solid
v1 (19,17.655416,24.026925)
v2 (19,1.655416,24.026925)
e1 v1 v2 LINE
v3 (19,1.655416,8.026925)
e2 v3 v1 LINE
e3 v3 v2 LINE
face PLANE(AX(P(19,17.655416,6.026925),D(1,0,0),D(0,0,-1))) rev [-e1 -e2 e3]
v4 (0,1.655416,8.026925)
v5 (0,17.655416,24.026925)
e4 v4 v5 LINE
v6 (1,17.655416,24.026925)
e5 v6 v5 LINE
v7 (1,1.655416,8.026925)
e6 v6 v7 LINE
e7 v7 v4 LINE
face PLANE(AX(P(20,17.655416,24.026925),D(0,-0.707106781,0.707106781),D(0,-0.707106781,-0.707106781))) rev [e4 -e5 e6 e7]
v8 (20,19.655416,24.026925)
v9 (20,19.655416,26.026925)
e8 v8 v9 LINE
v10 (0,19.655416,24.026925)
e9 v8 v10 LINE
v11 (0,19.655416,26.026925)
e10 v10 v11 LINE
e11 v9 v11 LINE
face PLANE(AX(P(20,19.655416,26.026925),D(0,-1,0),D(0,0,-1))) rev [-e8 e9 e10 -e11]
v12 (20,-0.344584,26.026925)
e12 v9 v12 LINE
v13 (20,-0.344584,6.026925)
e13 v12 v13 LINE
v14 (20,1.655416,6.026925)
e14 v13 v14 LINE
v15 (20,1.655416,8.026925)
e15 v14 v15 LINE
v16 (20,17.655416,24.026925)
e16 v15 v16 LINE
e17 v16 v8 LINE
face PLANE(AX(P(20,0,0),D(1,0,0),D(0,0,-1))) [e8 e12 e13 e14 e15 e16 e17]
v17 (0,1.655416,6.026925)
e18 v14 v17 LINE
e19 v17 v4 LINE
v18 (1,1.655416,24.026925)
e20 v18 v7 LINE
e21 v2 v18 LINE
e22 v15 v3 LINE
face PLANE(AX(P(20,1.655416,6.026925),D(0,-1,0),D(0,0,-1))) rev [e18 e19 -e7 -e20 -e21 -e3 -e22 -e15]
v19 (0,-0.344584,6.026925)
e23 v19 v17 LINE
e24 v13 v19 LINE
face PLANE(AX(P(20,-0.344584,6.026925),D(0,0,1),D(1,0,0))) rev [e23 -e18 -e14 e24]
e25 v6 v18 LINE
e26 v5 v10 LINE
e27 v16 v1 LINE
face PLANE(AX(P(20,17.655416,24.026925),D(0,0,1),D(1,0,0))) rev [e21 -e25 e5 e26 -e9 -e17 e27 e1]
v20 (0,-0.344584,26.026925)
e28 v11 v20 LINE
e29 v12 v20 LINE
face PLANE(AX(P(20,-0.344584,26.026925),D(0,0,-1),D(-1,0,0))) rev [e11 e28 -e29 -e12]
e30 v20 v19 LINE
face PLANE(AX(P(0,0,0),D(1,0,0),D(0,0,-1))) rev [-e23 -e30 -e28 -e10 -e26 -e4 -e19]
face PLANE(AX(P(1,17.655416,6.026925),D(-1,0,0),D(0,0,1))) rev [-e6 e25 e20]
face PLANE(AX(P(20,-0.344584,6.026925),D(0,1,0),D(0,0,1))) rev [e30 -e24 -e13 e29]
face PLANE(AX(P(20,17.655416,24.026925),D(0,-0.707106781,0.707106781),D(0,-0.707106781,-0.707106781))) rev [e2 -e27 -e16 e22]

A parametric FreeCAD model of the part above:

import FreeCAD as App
import Part
import Sketcher
Q = App.Units.Quantity

doc = App.newDocument("Part")
body = doc.addObject("PartDesign::Body", "Body")

# Sketch on YZ plane
sketch1 = body.newObject("Sketcher::SketchObject", "Sketch")
sketch1.AttachmentSupport = (doc.getObject("YZ_Plane"), [""])
sketch1.MapMode = "FlatFace"
sketch1.addGeometry([
    Part.LineSegment(App.Vector(-0.3, 26, 0), App.Vector(-0.3, 6, 0)),  # 0
    Part.LineSegment(App.Vector(-0.3, 6, 0), App.Vector(1.7, 6, 0)),  # 1
    Part.LineSegment(App.Vector(1.7, 6, 0), App.Vector(1.7, 8, 0)),  # 2
    Part.LineSegment(App.Vector(1.7, 8, 0), App.Vector(17.7, 24, 0)),  # 3
    Part.LineSegment(App.Vector(17.7, 24, 0), App.Vector(19.7, 24, 0)),  # 4
    Part.LineSegment(App.Vector(19.7, 24, 0), App.Vector(19.7, 26, 0)),  # 5
    Part.LineSegment(App.Vector(19.7, 26, 0), App.Vector(-0.3, 26, 0)),  # 6
], False)
sketch1.addConstraint([
    Sketcher.Constraint("Coincident", 0, 2, 1, 1),
    Sketcher.Constraint("Coincident", 1, 2, 2, 1),
    Sketcher.Constraint("Coincident", 2, 2, 3, 1),
    Sketcher.Constraint("Coincident", 3, 2, 4, 1),
    Sketcher.Constraint("Coincident", 4, 2, 5, 1),
    Sketcher.Constraint("Coincident", 5, 2, 6, 1),
    Sketcher.Constraint("Coincident", 6, 2, 0, 1),
    Sketcher.Constraint("Vertical", 0),
    Sketcher.Constraint("Horizontal", 1),
    Sketcher.Constraint("Vertical", 2),
    Sketcher.Constraint("Horizontal", 4),
    Sketcher.Constraint("Vertical", 5),
    Sketcher.Constraint("Horizontal", 6),
    Sketcher.Constraint("Equal", 1, 4),
    Sketcher.Constraint("Equal", 6, 0),
    Sketcher.Constraint("Equal", 4, 2),
    Sketcher.Constraint("Equal", 2, 5),
    Sketcher.Constraint("DistanceX", 1, 1, 1, 2, Q("2 mm")),
    Sketcher.Constraint("DistanceX", 6, 2, 6, 1, Q("20 mm")),
    Sketcher.Constraint("DistanceX", 0, 2, -1, 1, Q("0.344584 mm")),
    Sketcher.Constraint("DistanceY", -1, 1, 0, 2, Q("6.026925 mm")),
])
pad1 = body.newObject("PartDesign::Pad", "Pad")
pad1.Profile = sketch1
pad1.Length = 20

# Sketch on XZ plane
sketch2 = body.newObject("Sketcher::SketchObject", "Sketch001")
sketch2.AttachmentSupport = (doc.getObject("XZ_Plane"), [""])
sketch2.MapMode = "FlatFace"
sketch2.AttachmentOffset = App.Placement(App.Vector(0, 0, -1.655416), App.Rotation())
sketch2.addGeometry([
    Part.LineSegment(App.Vector(1, 24, 0), App.Vector(1, 8, 0)),
    Part.LineSegment(App.Vector(1, 8, 0), App.Vector(19, 8, 0)),
    Part.LineSegment(App.Vector(19, 8, 0), App.Vector(19, 24, 0)),
    Part.LineSegment(App.Vector(19, 24, 0), App.Vector(1, 24, 0)),
], False)
sketch2.addConstraint([
    Sketcher.Constraint("Coincident", 0, 2, 1, 1),
    Sketcher.Constraint("Coincident", 1, 2, 2, 1),
    Sketcher.Constraint("Coincident", 2, 2, 3, 1),
    Sketcher.Constraint("Coincident", 3, 2, 0, 1),
    Sketcher.Constraint("Vertical", 0),
    Sketcher.Constraint("Horizontal", 1),
    Sketcher.Constraint("Vertical", 2),
    Sketcher.Constraint("Horizontal", 3),
    Sketcher.Constraint("DistanceX", 1, 1, 1, 2, Q("18 mm")),
    Sketcher.Constraint("DistanceY", 0, 2, 0, 1, Q("16 mm")),
    Sketcher.Constraint("DistanceX", -1, 1, 0, 2, Q("1 mm")),
    Sketcher.Constraint("DistanceY", -1, 1, 0, 2, Q("8.026925 mm")),
])
pocket1 = body.newObject("PartDesign::Pocket", "Pocket")
pocket1.Profile = sketch2
pocket1.Length = 16

doc.recompute()
